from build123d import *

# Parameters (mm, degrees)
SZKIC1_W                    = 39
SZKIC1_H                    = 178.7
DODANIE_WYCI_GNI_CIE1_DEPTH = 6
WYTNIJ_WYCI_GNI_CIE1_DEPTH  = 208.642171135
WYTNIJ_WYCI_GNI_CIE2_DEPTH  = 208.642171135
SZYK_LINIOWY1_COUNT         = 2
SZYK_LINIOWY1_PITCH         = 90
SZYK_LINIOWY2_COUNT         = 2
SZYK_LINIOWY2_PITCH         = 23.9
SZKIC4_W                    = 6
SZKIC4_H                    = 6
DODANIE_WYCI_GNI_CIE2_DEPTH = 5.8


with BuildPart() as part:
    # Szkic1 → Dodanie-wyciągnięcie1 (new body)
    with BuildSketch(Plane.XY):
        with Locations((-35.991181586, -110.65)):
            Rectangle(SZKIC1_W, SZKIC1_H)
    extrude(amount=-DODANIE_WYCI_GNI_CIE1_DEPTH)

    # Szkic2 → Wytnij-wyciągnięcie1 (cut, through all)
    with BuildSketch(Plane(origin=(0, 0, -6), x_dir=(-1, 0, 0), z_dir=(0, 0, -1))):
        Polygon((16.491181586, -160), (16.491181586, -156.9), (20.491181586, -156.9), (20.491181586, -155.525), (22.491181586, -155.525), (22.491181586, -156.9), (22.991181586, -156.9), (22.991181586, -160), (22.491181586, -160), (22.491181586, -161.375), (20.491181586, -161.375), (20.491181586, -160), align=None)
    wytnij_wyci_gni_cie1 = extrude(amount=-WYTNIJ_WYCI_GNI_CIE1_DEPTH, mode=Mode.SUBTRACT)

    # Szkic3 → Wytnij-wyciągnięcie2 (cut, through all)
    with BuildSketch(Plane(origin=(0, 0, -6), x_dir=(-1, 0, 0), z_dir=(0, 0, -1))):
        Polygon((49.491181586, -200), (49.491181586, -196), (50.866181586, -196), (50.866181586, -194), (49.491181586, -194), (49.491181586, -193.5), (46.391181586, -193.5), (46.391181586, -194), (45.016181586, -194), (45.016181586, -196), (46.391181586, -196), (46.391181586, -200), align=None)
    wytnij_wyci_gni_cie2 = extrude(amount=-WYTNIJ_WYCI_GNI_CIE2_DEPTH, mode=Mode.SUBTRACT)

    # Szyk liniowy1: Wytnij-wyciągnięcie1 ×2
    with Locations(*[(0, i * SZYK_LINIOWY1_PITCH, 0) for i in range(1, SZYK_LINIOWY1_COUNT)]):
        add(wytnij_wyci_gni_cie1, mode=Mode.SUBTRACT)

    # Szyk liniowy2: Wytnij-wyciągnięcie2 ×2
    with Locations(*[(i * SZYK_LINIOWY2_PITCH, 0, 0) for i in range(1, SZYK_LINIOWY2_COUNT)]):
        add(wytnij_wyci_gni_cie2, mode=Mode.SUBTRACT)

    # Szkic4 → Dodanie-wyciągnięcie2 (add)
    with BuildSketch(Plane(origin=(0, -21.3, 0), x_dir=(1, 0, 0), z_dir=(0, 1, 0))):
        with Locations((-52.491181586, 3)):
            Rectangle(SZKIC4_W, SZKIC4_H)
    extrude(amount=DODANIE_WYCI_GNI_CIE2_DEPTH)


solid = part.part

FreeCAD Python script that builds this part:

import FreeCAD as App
import Part
import Sketcher


def add_polygon(sketch, points):
    """Adds a closed chain of lines whose ends are joined by coincident constraints."""
    first, n = sketch.GeometryCount, len(points)
    for a, b in zip(points, points[1:] + points[:1]):
        sketch.addGeometry(Part.LineSegment(App.Vector(*a, 0), App.Vector(*b, 0)), False)
    for i in range(n):
        sketch.addConstraint(Sketcher.Constraint("Coincident", first + i, 2, first + (i + 1) % n, 1))

doc = App.newDocument("Part")
params = doc.addObject("Spreadsheet::Sheet", "Params")
for row, (alias, value) in enumerate([
    ("sketch1_width", "39 mm"),
    ("sketch1_height", "178.7 mm"),
    ("pad1_length", "6 mm"),
    ("sketch2_width", "4 mm"),
    ("sketch2_width2", "2 mm"),
    ("sketch2_width3", "0.5 mm"),
    ("sketch2_height", "3.1 mm"),
    ("sketch3_height", "4 mm"),
    ("sketch3_height2", "2 mm"),
    ("sketch3_width", "3.1 mm"),
    ("sketch3_height3", "0.5 mm"),
    ("linearpattern_pitch", "90 mm"),
    ("linearpattern2_pitch", "23.9 mm"),
    ("sketch4_width", "6 mm"),
    ("pad2_length", "5.8 mm"),
], start=1):
    params.set(f"A{row}", alias)
    params.set(f"B{row}", "=" + value)
    params.setAlias(f"B{row}", alias)

body = doc.addObject("PartDesign::Body", "Body")

# Sketch on XY plane
sketch1 = doc.addObject("Sketcher::SketchObject", "Sketch")
body.addObject(sketch1)
sketch1.AttachmentSupport = (doc.XY_Plane, [""])
sketch1.MapMode = "FlatFace"
add_polygon(sketch1, [(-55, -21), (-55, -200), (-16, -200), (-16, -21)])  # lines 0-3
sketch1.addConstraint(Sketcher.Constraint("Vertical", 0))
sketch1.addConstraint(Sketcher.Constraint("Horizontal", 1))
sketch1.addConstraint(Sketcher.Constraint("Vertical", 2))
sketch1.addConstraint(Sketcher.Constraint("Horizontal", 3))
sketch1.addConstraint(Sketcher.Constraint("DistanceX", 1, 1, 1, 2, 39.0))
sketch1.addConstraint(Sketcher.Constraint("DistanceY", 0, 2, 0, 1, 178.7))
sketch1.addConstraint(Sketcher.Constraint("DistanceY", 0, 2, -1, 1, 200.0))
sketch1.addConstraint(Sketcher.Constraint("DistanceX", 0, 2, -1, 1, 55.491182))
sketch1.setExpression("Constraints[8]", "Params.sketch1_width")
sketch1.setExpression("Constraints[9]", "Params.sketch1_height")
pad1 = doc.addObject("PartDesign::Pad", "Pad")
body.addObject(pad1)
pad1.Profile = sketch1
pad1.setExpression("Length", "Params.pad1_length")
pad1.Reversed = True

# Sketch on XY plane
sketch2 = doc.addObject("Sketcher::SketchObject", "Sketch001")
body.addObject(sketch2)
sketch2.AttachmentSupport = (doc.XY_Plane, [""])
sketch2.MapMode = "FlatFace"
sketch2.AttachmentOffset = App.Placement(App.Vector(0, 0, -6), App.Rotation())
add_polygon(sketch2, [(-16.5, -156.9), (-16.5, -160), (-20.5, -160), (-20.5, -161.4), (-22.5, -161.4), (-22.5, -160), (-23, -160), (-23, -156.9), (-22.5, -156.9), (-22.5, -155.5), (-20.5, -155.5), (-20.5, -156.9)])  # lines 0-11
sketch2.addConstraint(Sketcher.Constraint("Vertical", 0))
sketch2.addConstraint(Sketcher.Constraint("Horizontal", 1))
sketch2.addConstraint(Sketcher.Constraint("Vertical", 2))
sketch2.addConstraint(Sketcher.Constraint("Horizontal", 3))
sketch2.addConstraint(Sketcher.Constraint("Vertical", 4))
sketch2.addConstraint(Sketcher.Constraint("Horizontal", 5))
sketch2.addConstraint(Sketcher.Constraint("Vertical", 6))
sketch2.addConstraint(Sketcher.Constraint("Horizontal", 7))
sketch2.addConstraint(Sketcher.Constraint("Vertical", 8))
sketch2.addConstraint(Sketcher.Constraint("Horizontal", 9))
sketch2.addConstraint(Sketcher.Constraint("Vertical", 10))
sketch2.addConstraint(Sketcher.Constraint("Horizontal", 11))
sketch2.addConstraint(Sketcher.Constraint("Horizontal", 1, 2, 4, 2))
sketch2.addConstraint(Sketcher.Constraint("Horizontal", 7, 2, 10, 2))
sketch2.addConstraint(Sketcher.Constraint("Vertical", 4, 2, 7, 2))
sketch2.addConstraint(Sketcher.Constraint("Vertical", 2, 2, 9, 2))
sketch2.addConstraint(Sketcher.Constraint("Equal", 4, 8))
sketch2.addConstraint(Sketcher.Constraint("DistanceX", 1, 2, 1, 1, 4.0))
sketch2.addConstraint(Sketcher.Constraint("DistanceX", 3, 2, 3, 1, 2.0))
sketch2.addConstraint(Sketcher.Constraint("DistanceX", 5, 2, 5, 1, 0.5))
sketch2.addConstraint(Sketcher.Constraint("DistanceY", 0, 2, 0, 1, 3.1))
sketch2.addConstraint(Sketcher.Constraint("DistanceY", 0, 2, -1, 1, 160.0))
sketch2.addConstraint(Sketcher.Constraint("DistanceY", 2, 2, 2, 1, 1.375))
sketch2.addConstraint(Sketcher.Constraint("DistanceX", 0, 2, -1, 1, 16.491182))
sketch2.setExpression("Constraints[29]", "Params.sketch2_width")
sketch2.setExpression("Constraints[30]", "Params.sketch2_width2")
sketch2.setExpression("Constraints[31]", "Params.sketch2_width3")
sketch2.setExpression("Constraints[32]", "Params.sketch2_height")
pocket1 = doc.addObject("PartDesign::Pocket", "Pocket")
body.addObject(pocket1)
pocket1.Profile = sketch2
pocket1.Type = "ThroughAll"
pocket1.Reversed = True

# Sketch on XY plane
sketch3 = doc.addObject("Sketcher::SketchObject", "Sketch002")
body.addObject(sketch3)
sketch3.AttachmentSupport = (doc.XY_Plane, [""])
sketch3.MapMode = "FlatFace"
sketch3.AttachmentOffset = App.Placement(App.Vector(0, 0, -6), App.Rotation())
add_polygon(sketch3, [(-49.5, -200), (-49.5, -196), (-50.9, -196), (-50.9, -194), (-49.5, -194), (-49.5, -193.5), (-46.4, -193.5), (-46.4, -194), (-45, -194), (-45, -196), (-46.4, -196), (-46.4, -200)])  # lines 0-11
sketch3.addConstraint(Sketcher.Constraint("Vertical", 0))
sketch3.addConstraint(Sketcher.Constraint("Horizontal", 1))
sketch3.addConstraint(Sketcher.Constraint("Vertical", 2))
sketch3.addConstraint(Sketcher.Constraint("Horizontal", 3))
sketch3.addConstraint(Sketcher.Constraint("Vertical", 4))
sketch3.addConstraint(Sketcher.Constraint("Horizontal", 5))
sketch3.addConstraint(Sketcher.Constraint("Vertical", 6))
sketch3.addConstraint(Sketcher.Constraint("Horizontal", 7))
sketch3.addConstraint(Sketcher.Constraint("Vertical", 8))
sketch3.addConstraint(Sketcher.Constraint("Horizontal", 9))
sketch3.addConstraint(Sketcher.Constraint("Vertical", 10))
sketch3.addConstraint(Sketcher.Constraint("Horizontal", 11))
sketch3.addConstraint(Sketcher.Constraint("Horizontal", 3, 2, 6, 2))
sketch3.addConstraint(Sketcher.Constraint("Horizontal", 1, 2, 8, 2))
sketch3.addConstraint(Sketcher.Constraint("Vertical", 0, 2, 3, 2))
sketch3.addConstraint(Sketcher.Constraint("Vertical", 6, 2, 9, 2))
sketch3.addConstraint(Sketcher.Constraint("Equal", 3, 7))
sketch3.addConstraint(Sketcher.Constraint("DistanceY", 0, 1, 0, 2, 4.0))
sketch3.addConstraint(Sketcher.Constraint("DistanceY", 2, 1, 2, 2, 2.0))
sketch3.addConstraint(Sketcher.Constraint("DistanceX", 5, 1, 5, 2, 3.1))
sketch3.addConstraint(Sketcher.Constraint("DistanceY", 4, 1, 4, 2, 0.5))
sketch3.addConstraint(Sketcher.Constraint("DistanceY", 0, 2, -1, 1, 196.0))
sketch3.addConstraint(Sketcher.Constraint("DistanceX", 1, 2, 1, 1, 1.375))
sketch3.addConstraint(Sketcher.Constraint("DistanceX", 0, 2, -1, 1, 49.491182))
sketch3.setExpression("Constraints[29]", "Params.sketch3_height")
sketch3.setExpression("Constraints[30]", "Params.sketch3_height2")
sketch3.setExpression("Constraints[31]", "Params.sketch3_width")
sketch3.setExpression("Constraints[32]", "Params.sketch3_height3")
pocket2 = doc.addObject("PartDesign::Pocket", "Pocket001")
body.addObject(pocket2)
pocket2.Profile = sketch3
pocket2.Type = "ThroughAll"
pocket2.Reversed = True
doc.recompute()

linearpattern = doc.addObject("PartDesign::LinearPattern", "LinearPattern")
body.addObject(linearpattern)
linearpattern.Originals = [pocket1]
linearpattern.Direction = (doc.Y_Axis, [""])
linearpattern.Mode = "offset"
linearpattern.setExpression("Offset", "Params.linearpattern_pitch")
linearpattern.Occurrences = 2
body.Tip = linearpattern
doc.recompute()

linearpattern2 = doc.addObject("PartDesign::LinearPattern", "LinearPattern001")
body.addObject(linearpattern2)
linearpattern2.Originals = [pocket2]
linearpattern2.Direction = (doc.X_Axis, [""])
linearpattern2.Mode = "offset"
linearpattern2.setExpression("Offset", "Params.linearpattern2_pitch")
linearpattern2.Occurrences = 2
body.Tip = linearpattern2

# Sketch on XZ plane
sketch4 = doc.addObject("Sketcher::SketchObject", "Sketch003")
body.addObject(sketch4)
sketch4.AttachmentSupport = (doc.XZ_Plane, [""])
sketch4.MapMode = "FlatFace"
sketch4.AttachmentOffset = App.Placement(App.Vector(0, 0, 21.3), App.Rotation())
add_polygon(sketch4, [(-55, -6), (-55, 0), (-49, 0), (-49, -6)])  # lines 0-3
sketch4.addConstraint(Sketcher.Constraint("Vertical", 0))
sketch4.addConstraint(Sketcher.Constraint("Horizontal", 1))
sketch4.addConstraint(Sketcher.Constraint("Vertical", 2))
sketch4.addConstraint(Sketcher.Constraint("Horizontal", 3))
sketch4.addConstraint(Sketcher.Constraint("PointOnObject", 0, 2, -1))
sketch4.addConstraint(Sketcher.Constraint("Equal", 3, 0))
sketch4.addConstraint(Sketcher.Constraint("DistanceX", 1, 1, 1, 2, 6.0))
sketch4.addConstraint(Sketcher.Constraint("DistanceX", 0, 2, -1, 1, 55.491182))
sketch4.setExpression("Constraints[10]", "Params.sketch4_width")
pad2 = doc.addObject("PartDesign::Pad", "Pad001")
body.addObject(pad2)
pad2.Profile = sketch4
pad2.setExpression("Length", "Params.pad2_length")
pad2.Reversed = True

doc.recompute()
